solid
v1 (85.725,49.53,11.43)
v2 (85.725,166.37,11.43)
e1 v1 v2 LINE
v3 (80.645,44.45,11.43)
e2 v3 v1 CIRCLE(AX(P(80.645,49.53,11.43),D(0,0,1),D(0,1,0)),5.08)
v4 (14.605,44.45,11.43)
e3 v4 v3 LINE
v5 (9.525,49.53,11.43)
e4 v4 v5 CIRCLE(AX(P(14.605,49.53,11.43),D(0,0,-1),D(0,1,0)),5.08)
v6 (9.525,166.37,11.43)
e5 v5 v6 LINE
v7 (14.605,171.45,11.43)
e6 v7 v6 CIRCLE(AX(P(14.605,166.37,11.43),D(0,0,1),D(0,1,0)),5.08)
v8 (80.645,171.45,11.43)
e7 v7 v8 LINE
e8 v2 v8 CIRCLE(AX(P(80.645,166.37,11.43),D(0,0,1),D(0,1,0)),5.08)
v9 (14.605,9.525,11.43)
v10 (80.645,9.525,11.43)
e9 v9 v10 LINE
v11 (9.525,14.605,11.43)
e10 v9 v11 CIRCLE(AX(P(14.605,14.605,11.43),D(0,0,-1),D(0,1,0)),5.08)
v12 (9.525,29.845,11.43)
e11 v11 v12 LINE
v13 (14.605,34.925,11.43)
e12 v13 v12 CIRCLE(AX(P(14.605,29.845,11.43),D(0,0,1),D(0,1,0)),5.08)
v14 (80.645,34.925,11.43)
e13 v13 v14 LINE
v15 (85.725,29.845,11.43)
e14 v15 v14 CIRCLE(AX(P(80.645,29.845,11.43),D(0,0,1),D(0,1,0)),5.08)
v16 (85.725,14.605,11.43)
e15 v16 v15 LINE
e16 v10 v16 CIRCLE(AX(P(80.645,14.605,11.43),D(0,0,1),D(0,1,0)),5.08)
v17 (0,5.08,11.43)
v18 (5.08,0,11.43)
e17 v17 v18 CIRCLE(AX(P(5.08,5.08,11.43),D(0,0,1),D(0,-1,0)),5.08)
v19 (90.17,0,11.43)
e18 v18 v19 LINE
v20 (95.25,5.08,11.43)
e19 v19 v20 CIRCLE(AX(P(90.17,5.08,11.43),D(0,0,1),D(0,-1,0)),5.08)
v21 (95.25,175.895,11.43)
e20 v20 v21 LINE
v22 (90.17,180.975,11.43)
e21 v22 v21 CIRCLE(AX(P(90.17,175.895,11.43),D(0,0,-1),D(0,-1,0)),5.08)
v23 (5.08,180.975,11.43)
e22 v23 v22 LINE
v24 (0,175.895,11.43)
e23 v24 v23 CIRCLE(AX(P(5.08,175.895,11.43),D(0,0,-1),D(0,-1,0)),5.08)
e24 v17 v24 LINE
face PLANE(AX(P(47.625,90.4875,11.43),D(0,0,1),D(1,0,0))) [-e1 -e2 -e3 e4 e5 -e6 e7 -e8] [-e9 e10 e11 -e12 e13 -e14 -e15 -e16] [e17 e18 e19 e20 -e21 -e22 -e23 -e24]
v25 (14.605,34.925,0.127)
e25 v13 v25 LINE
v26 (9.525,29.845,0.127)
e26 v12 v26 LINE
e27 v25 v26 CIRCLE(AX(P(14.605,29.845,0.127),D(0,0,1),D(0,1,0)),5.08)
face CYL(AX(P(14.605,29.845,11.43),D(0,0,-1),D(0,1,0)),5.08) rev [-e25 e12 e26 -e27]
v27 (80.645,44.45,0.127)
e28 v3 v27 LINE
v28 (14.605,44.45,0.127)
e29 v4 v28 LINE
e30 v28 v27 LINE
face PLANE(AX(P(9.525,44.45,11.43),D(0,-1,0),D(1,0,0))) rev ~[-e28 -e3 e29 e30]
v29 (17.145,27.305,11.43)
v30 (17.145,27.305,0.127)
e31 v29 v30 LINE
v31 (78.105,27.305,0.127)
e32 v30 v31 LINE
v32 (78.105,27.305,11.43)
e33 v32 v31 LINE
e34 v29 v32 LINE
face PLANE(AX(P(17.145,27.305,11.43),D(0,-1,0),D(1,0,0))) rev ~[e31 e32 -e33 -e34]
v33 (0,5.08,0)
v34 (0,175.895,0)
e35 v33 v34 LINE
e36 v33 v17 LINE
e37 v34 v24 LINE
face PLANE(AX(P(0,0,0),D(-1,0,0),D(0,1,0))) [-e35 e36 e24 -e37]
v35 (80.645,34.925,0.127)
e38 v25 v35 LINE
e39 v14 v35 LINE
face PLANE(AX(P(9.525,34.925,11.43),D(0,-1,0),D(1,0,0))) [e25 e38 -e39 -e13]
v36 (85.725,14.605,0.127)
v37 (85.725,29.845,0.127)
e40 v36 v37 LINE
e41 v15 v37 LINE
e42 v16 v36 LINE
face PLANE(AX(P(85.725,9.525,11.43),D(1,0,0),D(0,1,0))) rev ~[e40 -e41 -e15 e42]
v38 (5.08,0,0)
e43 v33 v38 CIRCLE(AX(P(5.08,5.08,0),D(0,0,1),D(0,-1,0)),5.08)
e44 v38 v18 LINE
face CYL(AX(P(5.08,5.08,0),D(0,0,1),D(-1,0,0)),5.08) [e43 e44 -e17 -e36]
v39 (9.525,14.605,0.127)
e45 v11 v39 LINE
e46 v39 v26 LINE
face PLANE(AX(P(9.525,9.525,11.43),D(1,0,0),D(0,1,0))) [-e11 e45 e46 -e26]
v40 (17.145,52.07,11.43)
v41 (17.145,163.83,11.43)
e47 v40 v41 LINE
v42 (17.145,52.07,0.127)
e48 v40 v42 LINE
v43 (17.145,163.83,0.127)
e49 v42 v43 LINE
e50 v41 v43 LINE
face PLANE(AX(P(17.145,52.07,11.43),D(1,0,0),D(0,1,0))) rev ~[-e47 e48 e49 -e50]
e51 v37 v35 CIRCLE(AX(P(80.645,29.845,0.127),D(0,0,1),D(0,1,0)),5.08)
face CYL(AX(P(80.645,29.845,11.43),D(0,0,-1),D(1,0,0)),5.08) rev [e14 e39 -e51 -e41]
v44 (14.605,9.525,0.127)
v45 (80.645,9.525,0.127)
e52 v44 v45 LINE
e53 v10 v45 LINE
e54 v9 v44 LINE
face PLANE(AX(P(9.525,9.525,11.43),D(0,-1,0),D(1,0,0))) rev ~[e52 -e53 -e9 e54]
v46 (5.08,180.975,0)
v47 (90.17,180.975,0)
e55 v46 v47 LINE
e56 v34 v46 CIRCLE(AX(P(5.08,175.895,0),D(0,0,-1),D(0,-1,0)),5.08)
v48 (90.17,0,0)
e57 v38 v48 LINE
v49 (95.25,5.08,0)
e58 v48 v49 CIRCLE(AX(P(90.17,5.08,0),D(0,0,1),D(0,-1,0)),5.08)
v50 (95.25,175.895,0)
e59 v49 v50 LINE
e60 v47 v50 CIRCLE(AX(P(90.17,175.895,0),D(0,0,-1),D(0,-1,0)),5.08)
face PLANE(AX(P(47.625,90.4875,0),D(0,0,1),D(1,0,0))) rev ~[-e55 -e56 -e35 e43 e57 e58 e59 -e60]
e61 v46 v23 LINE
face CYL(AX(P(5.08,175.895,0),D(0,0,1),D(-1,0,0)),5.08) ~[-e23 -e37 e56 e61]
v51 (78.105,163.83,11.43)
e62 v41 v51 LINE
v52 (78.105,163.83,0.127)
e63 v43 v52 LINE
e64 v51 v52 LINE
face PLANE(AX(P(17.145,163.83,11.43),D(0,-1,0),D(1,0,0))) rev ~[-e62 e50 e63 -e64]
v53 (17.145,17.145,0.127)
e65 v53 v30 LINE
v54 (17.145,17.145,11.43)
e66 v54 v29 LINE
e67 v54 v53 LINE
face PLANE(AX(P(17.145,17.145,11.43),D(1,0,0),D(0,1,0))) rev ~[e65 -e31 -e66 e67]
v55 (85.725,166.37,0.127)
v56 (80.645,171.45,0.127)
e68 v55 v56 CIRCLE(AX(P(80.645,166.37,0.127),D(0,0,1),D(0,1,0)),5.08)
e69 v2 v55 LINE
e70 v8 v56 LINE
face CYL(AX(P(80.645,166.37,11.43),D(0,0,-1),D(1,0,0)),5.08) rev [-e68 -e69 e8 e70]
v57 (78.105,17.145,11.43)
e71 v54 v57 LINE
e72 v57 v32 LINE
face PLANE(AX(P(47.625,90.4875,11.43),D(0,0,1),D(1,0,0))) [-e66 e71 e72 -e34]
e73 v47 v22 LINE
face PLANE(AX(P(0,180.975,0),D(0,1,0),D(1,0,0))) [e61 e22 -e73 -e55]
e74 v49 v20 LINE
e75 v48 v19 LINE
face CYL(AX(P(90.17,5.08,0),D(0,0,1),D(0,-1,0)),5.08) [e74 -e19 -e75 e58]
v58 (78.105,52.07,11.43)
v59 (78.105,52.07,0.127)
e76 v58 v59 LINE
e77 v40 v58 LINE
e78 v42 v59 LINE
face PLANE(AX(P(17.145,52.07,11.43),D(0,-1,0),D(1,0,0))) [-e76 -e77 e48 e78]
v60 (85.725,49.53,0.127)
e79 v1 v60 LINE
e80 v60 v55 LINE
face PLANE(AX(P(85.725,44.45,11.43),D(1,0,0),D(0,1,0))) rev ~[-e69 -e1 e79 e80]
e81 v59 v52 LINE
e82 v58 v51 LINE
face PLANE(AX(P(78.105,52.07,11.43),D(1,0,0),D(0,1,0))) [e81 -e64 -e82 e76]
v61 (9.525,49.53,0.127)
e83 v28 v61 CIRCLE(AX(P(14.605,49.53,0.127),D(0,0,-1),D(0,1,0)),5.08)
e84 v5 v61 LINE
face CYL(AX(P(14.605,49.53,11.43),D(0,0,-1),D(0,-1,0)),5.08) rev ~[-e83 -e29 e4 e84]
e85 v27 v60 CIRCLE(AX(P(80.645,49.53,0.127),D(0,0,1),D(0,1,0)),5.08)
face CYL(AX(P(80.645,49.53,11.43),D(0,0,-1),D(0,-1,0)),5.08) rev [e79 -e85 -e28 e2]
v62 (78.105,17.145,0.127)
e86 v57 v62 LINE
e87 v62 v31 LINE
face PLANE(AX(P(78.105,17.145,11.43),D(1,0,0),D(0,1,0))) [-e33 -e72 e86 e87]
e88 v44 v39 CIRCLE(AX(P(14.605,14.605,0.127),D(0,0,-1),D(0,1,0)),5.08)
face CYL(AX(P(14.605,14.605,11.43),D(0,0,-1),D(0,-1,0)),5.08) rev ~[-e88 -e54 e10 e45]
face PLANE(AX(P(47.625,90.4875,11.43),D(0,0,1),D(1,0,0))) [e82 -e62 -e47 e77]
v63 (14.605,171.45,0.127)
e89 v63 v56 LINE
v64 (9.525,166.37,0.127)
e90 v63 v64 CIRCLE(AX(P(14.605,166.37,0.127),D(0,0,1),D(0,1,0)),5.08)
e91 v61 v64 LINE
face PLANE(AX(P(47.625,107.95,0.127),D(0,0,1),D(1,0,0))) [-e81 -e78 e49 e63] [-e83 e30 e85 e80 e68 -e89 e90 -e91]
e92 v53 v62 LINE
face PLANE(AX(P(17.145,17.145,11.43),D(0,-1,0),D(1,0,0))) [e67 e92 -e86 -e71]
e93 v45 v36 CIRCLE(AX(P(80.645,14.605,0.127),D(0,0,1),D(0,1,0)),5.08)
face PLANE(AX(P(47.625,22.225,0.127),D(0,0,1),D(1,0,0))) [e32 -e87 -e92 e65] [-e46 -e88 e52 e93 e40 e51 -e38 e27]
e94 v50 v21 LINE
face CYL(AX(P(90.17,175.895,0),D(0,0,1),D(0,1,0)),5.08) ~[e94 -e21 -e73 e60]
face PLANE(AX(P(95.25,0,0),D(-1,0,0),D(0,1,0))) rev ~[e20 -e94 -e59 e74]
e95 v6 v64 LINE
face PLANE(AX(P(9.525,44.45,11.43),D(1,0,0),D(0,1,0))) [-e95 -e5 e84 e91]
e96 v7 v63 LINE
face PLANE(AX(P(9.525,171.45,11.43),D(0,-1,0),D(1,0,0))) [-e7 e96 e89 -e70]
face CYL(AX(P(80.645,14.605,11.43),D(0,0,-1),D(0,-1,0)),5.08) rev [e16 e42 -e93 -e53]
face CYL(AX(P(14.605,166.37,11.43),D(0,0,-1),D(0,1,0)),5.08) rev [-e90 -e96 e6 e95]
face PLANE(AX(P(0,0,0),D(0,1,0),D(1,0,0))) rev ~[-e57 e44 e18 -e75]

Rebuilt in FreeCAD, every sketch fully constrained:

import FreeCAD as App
import Part
import Sketcher
from FreeCAD import Vector
Q = App.Units.Quantity


def edges_at(feature, points):
    """Names of the edges that pass closest to the given points."""
    edges = feature.Shape.Edges
    near = lambda p: min(range(len(edges)), key=lambda i: edges[i].distToShape(Part.Vertex(*p))[0])
    return sorted({f"Edge{near(p) + 1}" for p in points})


def add_polygon(sketch, points):
    """Adds a closed chain of lines whose ends are joined by coincident constraints."""
    first, n = sketch.GeometryCount, len(points)
    for a, b in zip(points, points[1:] + points[:1]):
        sketch.addGeometry(Part.LineSegment(App.Vector(*a, 0), App.Vector(*b, 0)), False)
    for i in range(n):
        sketch.addConstraint(Sketcher.Constraint("Coincident", first + i, 2, first + (i + 1) % n, 1))

doc = App.newDocument("Part")
params = doc.addObject("Spreadsheet::Sheet", "Params")
for row, (alias, value) in enumerate([
    ("sketch1_width", "3.75 in"),
    ("sketch1_height", "7.125 in"),
    ("pad1_length", "0.45 in"),
    ("sketch2_width", "3 in"),
    ("sketch2_height", "5 in"),
    ("sketch2_height2", "1 in"),
    ("sketch2_width2", "2.4 in"),
    ("sketch2_height3", "4.4 in"),
    ("pocket1_length", "0.445 in"),
    ("fillet_radius", "0.2 in"),
], start=1):
    params.set(f"A{row}", alias)
    params.set(f"B{row}", "=" + value)
    params.setAlias(f"B{row}", alias)

body = doc.addObject("PartDesign::Body", "Body")

# Sketch on XY plane
sketch1 = body.newObject("Sketcher::SketchObject", "Sketch")
sketch1.AttachmentSupport = (doc.getObject("XY_Plane"), [""])
sketch1.MapMode = "FlatFace"
add_polygon(sketch1, [(0, 181), (0, 0), (95, 0), (95, 181)])  # lines 0-3
sketch1.addConstraint(Sketcher.Constraint("Vertical", 0))
sketch1.addConstraint(Sketcher.Constraint("Horizontal", 1))
sketch1.addConstraint(Sketcher.Constraint("Vertical", 2))
sketch1.addConstraint(Sketcher.Constraint("Horizontal", 3))
sketch1.addConstraint(Sketcher.Constraint("Coincident", 0, 2, -1, 1))
sketch1.addConstraint(Sketcher.Constraint("DistanceX", 1, 1, 1, 2, Q("3.75 in")))
sketch1.addConstraint(Sketcher.Constraint("DistanceY", 0, 2, 0, 1, Q("7.125 in")))
sketch1.setExpression("Constraints[9]", "Params.sketch1_width")
sketch1.setExpression("Constraints[10]", "Params.sketch1_height")
pad1 = body.newObject("PartDesign::Pad", "Pad")
pad1.Profile = sketch1
pad1.setExpression("Length", "Params.pad1_length")

# Sketch on XY plane
sketch2 = body.newObject("Sketcher::SketchObject", "Sketch001")
sketch2.AttachmentSupport = (doc.getObject("XY_Plane"), [""])
sketch2.MapMode = "FlatFace"
sketch2.AttachmentOffset = App.Placement(Vector(0, 0, 0.45 * 25.4), App.Rotation())
add_polygon(sketch2, [(10, 171), (10, 44), (86, 44), (86, 171)])  # lines 0-3
add_polygon(sketch2, [(78, 52), (17, 52), (17, 164), (78, 164)])  # lines 4-7
add_polygon(sketch2, [(10, 35), (10, 10), (86, 10), (86, 35)])  # lines 8-11
add_polygon(sketch2, [(78, 17), (17, 17), (17, 27), (78, 27)])  # lines 12-15
sketch2.addConstraint(Sketcher.Constraint("Vertical", 0))
sketch2.addConstraint(Sketcher.Constraint("Horizontal", 1))
sketch2.addConstraint(Sketcher.Constraint("Vertical", 2))
sketch2.addConstraint(Sketcher.Constraint("Horizontal", 3))
sketch2.addConstraint(Sketcher.Constraint("Horizontal", 4))
sketch2.addConstraint(Sketcher.Constraint("Vertical", 5))
sketch2.addConstraint(Sketcher.Constraint("Horizontal", 6))
sketch2.addConstraint(Sketcher.Constraint("Vertical", 7))
sketch2.addConstraint(Sketcher.Constraint("Vertical", 8))
sketch2.addConstraint(Sketcher.Constraint("Horizontal", 9))
sketch2.addConstraint(Sketcher.Constraint("Vertical", 10))
sketch2.addConstraint(Sketcher.Constraint("Horizontal", 11))
sketch2.addConstraint(Sketcher.Constraint("Horizontal", 12))
sketch2.addConstraint(Sketcher.Constraint("Vertical", 13))
sketch2.addConstraint(Sketcher.Constraint("Horizontal", 14))
sketch2.addConstraint(Sketcher.Constraint("Vertical", 15))
sketch2.addConstraint(Sketcher.Constraint("Vertical", 3, 2, 8, 2))
sketch2.addConstraint(Sketcher.Constraint("Vertical", 2, 2, 9, 2))
sketch2.addConstraint(Sketcher.Constraint("Vertical", 5, 2, 12, 2))
sketch2.addConstraint(Sketcher.Constraint("Vertical", 7, 2, 14, 2))
sketch2.addConstraint(Sketcher.Constraint("DistanceX", 1, 1, 1, 2, Q("3 in")))
sketch2.addConstraint(Sketcher.Constraint("DistanceY", 0, 2, 0, 1, Q("5 in")))
sketch2.addConstraint(Sketcher.Constraint("DistanceY", 8, 2, 8, 1, Q("1 in")))
sketch2.addConstraint(Sketcher.Constraint("DistanceX", 4, 2, 4, 1, Q("2.4 in")))
sketch2.addConstraint(Sketcher.Constraint("DistanceY", 5, 1, 5, 2, Q("4.4 in")))
sketch2.addConstraint(Sketcher.Constraint("DistanceY", 13, 1, 13, 2, Q("0.4 in")))
sketch2.addConstraint(Sketcher.Constraint("DistanceX", 0, 2, 4, 2, Q("0.3 in")))
sketch2.addConstraint(Sketcher.Constraint("DistanceY", 0, 2, 4, 2, Q("0.3 in")))
sketch2.addConstraint(Sketcher.Constraint("DistanceY", 8, 2, 12, 2, Q("0.3 in")))
sketch2.addConstraint(Sketcher.Constraint("DistanceY", -1, 1, 0, 2, Q("1.75 in")))
sketch2.addConstraint(Sketcher.Constraint("DistanceX", -1, 1, 0, 2, Q("0.375 in")))
sketch2.addConstraint(Sketcher.Constraint("DistanceY", -1, 1, 8, 2, Q("0.375 in")))
sketch2.setExpression("Constraints[36]", "Params.sketch2_width")
sketch2.setExpression("Constraints[37]", "Params.sketch2_height")
sketch2.setExpression("Constraints[38]", "Params.sketch2_height2")
sketch2.setExpression("Constraints[39]", "Params.sketch2_width2")
sketch2.setExpression("Constraints[40]", "Params.sketch2_height3")
pocket1 = body.newObject("PartDesign::Pocket", "Pocket")
pocket1.Profile = sketch2
pocket1.setExpression("Length", "Params.pocket1_length")
doc.recompute()

fillet = body.newObject("PartDesign::Fillet", "Fillet")
fillet.Base = (pocket1, edges_at(pocket1, [
    (0, 0, 5.715),
    (9.525, 34.925, 5.779),
    (95.25, 0, 5.715),
    (85.725, 34.925, 5.779),
    (9.525, 9.525, 5.779),
    (85.725, 9.525, 5.779),
    (85.725, 44.45, 5.779),
    (9.525, 44.45, 5.779),
    (0, 180.975, 5.715),
    (95.25, 180.975, 5.715),
    (85.725, 171.45, 5.779),
    (9.525, 171.45, 5.779),
]))
fillet.setExpression("Radius", "Params.fillet_radius")

doc.recompute()
